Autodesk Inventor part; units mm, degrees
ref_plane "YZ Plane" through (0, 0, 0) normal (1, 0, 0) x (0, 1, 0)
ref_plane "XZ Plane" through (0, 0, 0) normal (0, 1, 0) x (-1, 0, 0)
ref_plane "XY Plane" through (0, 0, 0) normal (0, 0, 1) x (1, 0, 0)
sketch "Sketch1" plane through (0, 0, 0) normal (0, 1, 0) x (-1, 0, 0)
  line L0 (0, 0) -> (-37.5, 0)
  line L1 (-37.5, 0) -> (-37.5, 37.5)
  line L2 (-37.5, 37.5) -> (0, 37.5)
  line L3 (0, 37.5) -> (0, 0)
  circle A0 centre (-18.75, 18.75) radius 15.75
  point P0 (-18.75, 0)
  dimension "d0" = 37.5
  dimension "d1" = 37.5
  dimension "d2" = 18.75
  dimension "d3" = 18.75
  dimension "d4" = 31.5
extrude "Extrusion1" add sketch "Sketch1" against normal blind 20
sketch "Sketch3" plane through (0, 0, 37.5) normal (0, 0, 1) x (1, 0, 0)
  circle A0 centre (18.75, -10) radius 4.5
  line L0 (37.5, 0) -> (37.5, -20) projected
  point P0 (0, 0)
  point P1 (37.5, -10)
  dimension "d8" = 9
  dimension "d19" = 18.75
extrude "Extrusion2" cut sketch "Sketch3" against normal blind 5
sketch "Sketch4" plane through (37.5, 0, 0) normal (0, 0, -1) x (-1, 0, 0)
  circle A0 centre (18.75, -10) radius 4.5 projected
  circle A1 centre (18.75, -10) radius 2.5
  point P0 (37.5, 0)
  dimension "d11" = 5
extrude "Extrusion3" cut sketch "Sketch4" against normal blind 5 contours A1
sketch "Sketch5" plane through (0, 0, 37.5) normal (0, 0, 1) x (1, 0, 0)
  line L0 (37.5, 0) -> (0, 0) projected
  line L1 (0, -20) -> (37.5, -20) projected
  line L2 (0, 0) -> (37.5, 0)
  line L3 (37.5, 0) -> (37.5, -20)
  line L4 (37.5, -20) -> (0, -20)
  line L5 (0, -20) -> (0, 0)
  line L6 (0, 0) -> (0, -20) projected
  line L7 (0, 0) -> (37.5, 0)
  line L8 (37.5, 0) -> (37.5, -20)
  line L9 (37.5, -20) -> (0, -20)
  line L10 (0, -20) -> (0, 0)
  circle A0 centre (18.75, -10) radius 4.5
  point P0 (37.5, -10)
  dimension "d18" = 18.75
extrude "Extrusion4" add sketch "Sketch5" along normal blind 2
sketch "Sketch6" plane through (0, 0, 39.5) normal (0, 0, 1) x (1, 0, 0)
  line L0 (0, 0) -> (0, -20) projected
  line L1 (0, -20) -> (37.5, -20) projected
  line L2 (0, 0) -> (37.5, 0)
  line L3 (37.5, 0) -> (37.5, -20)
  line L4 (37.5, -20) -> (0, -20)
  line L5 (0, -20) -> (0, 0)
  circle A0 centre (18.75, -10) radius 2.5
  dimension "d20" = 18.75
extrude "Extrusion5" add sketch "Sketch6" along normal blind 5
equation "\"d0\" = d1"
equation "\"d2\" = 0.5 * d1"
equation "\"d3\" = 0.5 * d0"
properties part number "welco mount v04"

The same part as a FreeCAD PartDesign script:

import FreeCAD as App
import Part
import Sketcher
from FreeCAD import Vector
Q = App.Units.Quantity


def add_polygon(sketch, points):
    """Adds a closed chain of lines whose ends are joined by coincident constraints."""
    first, n = sketch.GeometryCount, len(points)
    for a, b in zip(points, points[1:] + points[:1]):
        sketch.addGeometry(Part.LineSegment(App.Vector(*a, 0), App.Vector(*b, 0)), False)
    for i in range(n):
        sketch.addConstraint(Sketcher.Constraint("Coincident", first + i, 2, first + (i + 1) % n, 1))

doc = App.newDocument("Part")
body = doc.addObject("PartDesign::Body", "Body")

sketch1 = body.newObject("Sketcher::SketchObject", "Sketch")
sketch1.AttachmentSupport = (doc.getObject("XZ_Plane"), [""])
sketch1.MapMode = "FlatFace"
add_polygon(sketch1, [(37.5, 0), (0, 0), (0, 37.5), (37.5, 37.5)])
sketch1.addGeometry(Part.Circle(Vector(18.75, 18.75, 0), Vector(0, 0, 1), 15.75), False)
sketch1.addConstraint([
    Sketcher.Constraint("Horizontal", 0),
    Sketcher.Constraint("Vertical", 1),
    Sketcher.Constraint("Horizontal", 2),
    Sketcher.Constraint("Vertical", 3),
    Sketcher.Constraint("Coincident", 0, 2, -1, 1),
    Sketcher.Constraint("Equal", 2, 1),
    Sketcher.Constraint("Diameter", 4, Q("31.5 mm")),
    Sketcher.Constraint("DistanceX", 0, 2, 0, 1, Q("37.5 mm")),
    Sketcher.Constraint("DistanceX", -1, 1, 4, 3, Q("18.75 mm")),
    Sketcher.Constraint("DistanceY", -1, 1, 4, 3, Q("18.75 mm")),
])
pad1 = body.newObject("PartDesign::Pad", "Pad")
pad1.Profile = sketch1
pad1.Length = 20

sketch2 = body.newObject("Sketcher::SketchObject", "Sketch001")
sketch2.AttachmentSupport = (doc.getObject("XY_Plane"), [""])
sketch2.MapMode = "FlatFace"
sketch2.AttachmentOffset = App.Placement(Vector(0, 0, 37.5), App.Rotation())
sketch2.addGeometry(Part.Circle(Vector(18.75, -10, 0), Vector(0, 0, 1), 4.5), False)
sketch2.addConstraint([
    Sketcher.Constraint("Diameter", 0, Q("9 mm")),
    Sketcher.Constraint("DistanceX", -1, 1, 0, 3, Q("18.75 mm")),
    Sketcher.Constraint("DistanceY", 0, 3, -1, 1, Q("10 mm")),
])
pocket1 = body.newObject("PartDesign::Pocket", "Pocket")
pocket1.Profile = sketch2
pocket1.Length = 5

sketch3 = body.newObject("Sketcher::SketchObject", "Sketch002")
sketch3.AttachmentSupport = (doc.getObject("XY_Plane"), [""])
sketch3.MapMode = "FlatFace"
sketch3.addGeometry(Part.Circle(Vector(18.75, -10, 0), Vector(0, 0, 1), 2.5), False)
sketch3.addConstraint([
    Sketcher.Constraint("Diameter", 0, Q("5 mm")),
    Sketcher.Constraint("DistanceY", 0, 3, -1, 1, Q("10 mm")),
    Sketcher.Constraint("DistanceX", -1, 1, 0, 3, Q("18.75 mm")),
])
pocket2 = body.newObject("PartDesign::Pocket", "Pocket001")
pocket2.Profile = sketch3
pocket2.Length = 5
pocket2.Reversed = True

sketch4 = body.newObject("Sketcher::SketchObject", "Sketch003")
sketch4.AttachmentSupport = (doc.getObject("XY_Plane"), [""])
sketch4.MapMode = "FlatFace"
sketch4.AttachmentOffset = App.Placement(Vector(0, 0, 37.5), App.Rotation())
add_polygon(sketch4, [(37.5, -20), (37.5, 0), (0, 0), (0, -20)])
sketch4.addGeometry(Part.Circle(Vector(18.75, -10, 0), Vector(0, 0, 1), 4.5), False)
sketch4.addConstraint([
    Sketcher.Constraint("Vertical", 0),
    Sketcher.Constraint("Horizontal", 1),
    Sketcher.Constraint("Vertical", 2),
    Sketcher.Constraint("Horizontal", 3),
    Sketcher.Constraint("Coincident", 1, 2, -1, 1),
    Sketcher.Constraint("Diameter", 4, Q("9 mm")),
    Sketcher.Constraint("DistanceY", 0, 1, 0, 2, Q("20 mm")),
    Sketcher.Constraint("DistanceX", -1, 1, 4, 3, Q("18.75 mm")),
    Sketcher.Constraint("DistanceX", 4, 3, 0, 2, Q("18.75 mm")),
    Sketcher.Constraint("DistanceY", 4, 3, -1, 1, Q("10 mm")),
])
pad2 = body.newObject("PartDesign::Pad", "Pad001")
pad2.Profile = sketch4
pad2.Length = 2

sketch5 = body.newObject("Sketcher::SketchObject", "Sketch004")
sketch5.AttachmentSupport = (doc.getObject("XY_Plane"), [""])
sketch5.MapMode = "FlatFace"
sketch5.AttachmentOffset = App.Placement(Vector(0, 0, 39.5), App.Rotation())
add_polygon(sketch5, [(37.5, 0), (0, 0), (0, -20), (37.5, -20)])
sketch5.addGeometry(Part.Circle(Vector(18.75, -10, 0), Vector(0, 0, 1), 2.5), False)
sketch5.addConstraint([
    Sketcher.Constraint("Horizontal", 0),
    Sketcher.Constraint("Vertical", 1),
    Sketcher.Constraint("Horizontal", 2),
    Sketcher.Constraint("Vertical", 3),
    Sketcher.Constraint("Coincident", 0, 2, -1, 1),
    Sketcher.Constraint("Diameter", 4, Q("5 mm")),
    Sketcher.Constraint("DistanceY", 1, 2, 1, 1, Q("20 mm")),
    Sketcher.Constraint("DistanceX", -1, 1, 4, 3, Q("18.75 mm")),
    Sketcher.Constraint("DistanceX", 4, 3, 2, 2, Q("18.75 mm")),
    Sketcher.Constraint("DistanceY", 4, 3, -1, 1, Q("10 mm")),
])
pad3 = body.newObject("PartDesign::Pad", "Pad002")
pad3.Profile = sketch5
pad3.Length = 5

doc.recompute()
